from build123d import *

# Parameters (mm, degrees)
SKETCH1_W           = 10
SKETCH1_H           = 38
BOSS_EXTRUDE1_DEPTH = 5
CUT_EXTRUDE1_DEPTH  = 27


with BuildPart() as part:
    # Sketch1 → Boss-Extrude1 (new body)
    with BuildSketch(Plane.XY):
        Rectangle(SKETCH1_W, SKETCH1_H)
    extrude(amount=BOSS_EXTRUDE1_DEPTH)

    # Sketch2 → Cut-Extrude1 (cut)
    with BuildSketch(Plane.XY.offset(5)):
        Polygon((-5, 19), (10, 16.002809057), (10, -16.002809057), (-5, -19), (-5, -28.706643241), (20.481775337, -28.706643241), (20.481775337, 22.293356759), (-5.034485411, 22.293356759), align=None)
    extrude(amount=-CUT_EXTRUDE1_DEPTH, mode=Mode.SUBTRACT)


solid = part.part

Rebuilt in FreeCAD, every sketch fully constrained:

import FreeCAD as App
import Part
import Sketcher
from FreeCAD import Vector
Q = App.Units.Quantity


def add_polygon(sketch, points):
    """Adds a closed chain of lines whose ends are joined by coincident constraints."""
    first, n = sketch.GeometryCount, len(points)
    for a, b in zip(points, points[1:] + points[:1]):
        sketch.addGeometry(Part.LineSegment(App.Vector(*a, 0), App.Vector(*b, 0)), False)
    for i in range(n):
        sketch.addConstraint(Sketcher.Constraint("Coincident", first + i, 2, first + (i + 1) % n, 1))

doc = App.newDocument("Part")
body = doc.addObject("PartDesign::Body", "Body")

# Sketch on XY plane
sketch1 = body.newObject("Sketcher::SketchObject", "Sketch")
sketch1.AttachmentSupport = (doc.getObject("XY_Plane"), [""])
sketch1.MapMode = "FlatFace"
add_polygon(sketch1, [(-5, 19), (-5, -19), (5, -19), (5, 19)])  # lines 0-3
sketch1.addConstraint([
    Sketcher.Constraint("Vertical", 0),
    Sketcher.Constraint("Horizontal", 1),
    Sketcher.Constraint("Vertical", 2),
    Sketcher.Constraint("Horizontal", 3),
    Sketcher.Constraint("Symmetric", 0, 2, 2, 2, -1, 1),
    Sketcher.Constraint("DistanceX", 1, 1, 1, 2, Q("10 mm")),
    Sketcher.Constraint("DistanceY", 0, 2, 0, 1, Q("38 mm")),
])
pad1 = body.newObject("PartDesign::Pad", "Pad")
pad1.Profile = sketch1
pad1.Length = 5

# Sketch on XY plane
sketch2 = body.newObject("Sketcher::SketchObject", "Sketch001")
sketch2.AttachmentSupport = (doc.getObject("XY_Plane"), [""])
sketch2.MapMode = "FlatFace"
sketch2.AttachmentOffset = App.Placement(Vector(0, 0, 5), App.Rotation())
add_polygon(sketch2, [(-5, 19), (10, 16.002809), (10, -16.002809), (-5, -19), (-5, -28.706643), (20.481775, -28.706643), (20.481775, 22.293357), (-5.034485, 22.293357)])  # lines 0-7
sketch2.addConstraint([
    Sketcher.Constraint("Vertical", 1),
    Sketcher.Constraint("Vertical", 3),
    Sketcher.Constraint("Horizontal", 4),
    Sketcher.Constraint("Vertical", 5),
    Sketcher.Constraint("Horizontal", 6),
    Sketcher.Constraint("Symmetric", 2, 2, 7, 2, -1),
    Sketcher.Constraint("Equal", 0, 2),
    Sketcher.Constraint("DistanceY", 5, 1, 5, 2, Q("51 mm")),
    Sketcher.Constraint("DistanceX", -1, 1, 0, 2, Q("10 mm")),
    Sketcher.Constraint("DistanceX", 2, 2, -1, 1, Q("5 mm")),
    Sketcher.Constraint("DistanceY", 2, 2, -1, 1, Q("19 mm")),
    Sketcher.Constraint("DistanceX", 6, 2, 6, 1, Q("25.516261 mm")),
    Sketcher.Constraint("DistanceY", 1, 2, 1, 1, Q("32.005618 mm")),
    Sketcher.Constraint("DistanceX", 4, 1, 4, 2, Q("25.481775 mm")),
    Sketcher.Constraint("DistanceY", 3, 2, 3, 1, Q("9.706643 mm")),
])
pocket1 = body.newObject("PartDesign::Pocket", "Pocket")
pocket1.Profile = sketch2
pocket1.Length = 27

doc.recompute()
